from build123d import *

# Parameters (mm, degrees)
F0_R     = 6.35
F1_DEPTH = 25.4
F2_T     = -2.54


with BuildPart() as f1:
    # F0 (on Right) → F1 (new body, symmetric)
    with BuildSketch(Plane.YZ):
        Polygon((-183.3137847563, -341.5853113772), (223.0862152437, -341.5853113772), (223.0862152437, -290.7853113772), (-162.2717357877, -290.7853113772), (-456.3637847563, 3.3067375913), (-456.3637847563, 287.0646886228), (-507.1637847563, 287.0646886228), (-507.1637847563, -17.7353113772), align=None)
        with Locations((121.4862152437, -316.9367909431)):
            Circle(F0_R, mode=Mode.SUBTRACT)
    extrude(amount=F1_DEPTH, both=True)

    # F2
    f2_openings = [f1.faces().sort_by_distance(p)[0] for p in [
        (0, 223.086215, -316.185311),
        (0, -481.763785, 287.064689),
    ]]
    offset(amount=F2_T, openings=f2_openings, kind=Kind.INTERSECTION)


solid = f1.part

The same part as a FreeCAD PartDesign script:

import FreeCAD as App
import Part
import Sketcher
Q = App.Units.Quantity


def faces_at(feature, points):
    """Names of the faces that lie closest to the given points."""
    faces = feature.Shape.Faces
    near = lambda p: min(range(len(faces)), key=lambda i: faces[i].distToShape(Part.Vertex(*p))[0])
    return sorted({f"Face{near(p) + 1}" for p in points})


def add_polygon(sketch, points):
    """Adds a closed chain of lines whose ends are joined by coincident constraints."""
    first, n = sketch.GeometryCount, len(points)
    for a, b in zip(points, points[1:] + points[:1]):
        sketch.addGeometry(Part.LineSegment(App.Vector(*a, 0), App.Vector(*b, 0)), False)
    for i in range(n):
        sketch.addConstraint(Sketcher.Constraint("Coincident", first + i, 2, first + (i + 1) % n, 1))

doc = App.newDocument("Part")
body = doc.addObject("PartDesign::Body", "Body")

# Sketch on YZ plane
sketch1 = body.newObject("Sketcher::SketchObject", "Sketch")
sketch1.AttachmentSupport = (doc.getObject("YZ_Plane"), [""])
sketch1.MapMode = "FlatFace"
add_polygon(sketch1, [(-183, -342), (223, -342), (223, -291), (-162, -291), (-456, 3), (-456, 287), (-507, 287), (-507, -18)])  # lines 0-7
sketch1.addGeometry(Part.Circle(App.Vector(121, -317, 0), App.Vector(0, 0, 1), 6), False)  # 8
sketch1.addConstraint([
    Sketcher.Constraint("Horizontal", 0),
    Sketcher.Constraint("Vertical", 1),
    Sketcher.Constraint("Horizontal", 2),
    Sketcher.Constraint("Vertical", 4),
    Sketcher.Constraint("Horizontal", 5),
    Sketcher.Constraint("Vertical", 6),
    Sketcher.Constraint("Parallel", 3, 7),
    Sketcher.Constraint("Equal", 5, 1),
    Sketcher.Constraint("Diameter", 8, Q("0.5 in")),
    Sketcher.Constraint("DistanceX", 0, 1, 0, 2, Q("16 in")),
    Sketcher.Constraint("DistanceX", 5, 2, 5, 1, Q("2 in")),
    Sketcher.Constraint("DistanceY", 6, 2, 6, 1, Q("12 in")),
    Sketcher.Constraint("Angle", 3, Q("135 deg")),
    Sketcher.Constraint("DistanceX", 8, 3, 0, 2, Q("4 in")),
    Sketcher.Constraint("DistanceX", 3, 2, 8, 3, Q("22.75 in")),
    Sketcher.Constraint("DistanceX", 2, 2, 2, 1, 385.357951),
    Sketcher.Constraint("DistanceY", 8, 3, -1, 1, 316.936791),
    Sketcher.Constraint("DistanceY", 0, 2, -1, 1, 341.585311),
    Sketcher.Constraint("DistanceX", -1, 1, 8, 3, 121.486215),
])
pad1 = body.newObject("PartDesign::Pad", "Pad")
pad1.Profile = sketch1
pad1.Length = Q("2 in")
pad1.Midplane = True
doc.recompute()

thickness = body.newObject("PartDesign::Thickness", "Thickness")
thickness.Base = (pad1, faces_at(pad1, [(0, 223.086, -316.185), (0, -481.764, 287.065)]))
thickness.Value = Q("0.1 in")
thickness.Reversed = True
thickness.Join = "Intersection"

doc.recompute()
